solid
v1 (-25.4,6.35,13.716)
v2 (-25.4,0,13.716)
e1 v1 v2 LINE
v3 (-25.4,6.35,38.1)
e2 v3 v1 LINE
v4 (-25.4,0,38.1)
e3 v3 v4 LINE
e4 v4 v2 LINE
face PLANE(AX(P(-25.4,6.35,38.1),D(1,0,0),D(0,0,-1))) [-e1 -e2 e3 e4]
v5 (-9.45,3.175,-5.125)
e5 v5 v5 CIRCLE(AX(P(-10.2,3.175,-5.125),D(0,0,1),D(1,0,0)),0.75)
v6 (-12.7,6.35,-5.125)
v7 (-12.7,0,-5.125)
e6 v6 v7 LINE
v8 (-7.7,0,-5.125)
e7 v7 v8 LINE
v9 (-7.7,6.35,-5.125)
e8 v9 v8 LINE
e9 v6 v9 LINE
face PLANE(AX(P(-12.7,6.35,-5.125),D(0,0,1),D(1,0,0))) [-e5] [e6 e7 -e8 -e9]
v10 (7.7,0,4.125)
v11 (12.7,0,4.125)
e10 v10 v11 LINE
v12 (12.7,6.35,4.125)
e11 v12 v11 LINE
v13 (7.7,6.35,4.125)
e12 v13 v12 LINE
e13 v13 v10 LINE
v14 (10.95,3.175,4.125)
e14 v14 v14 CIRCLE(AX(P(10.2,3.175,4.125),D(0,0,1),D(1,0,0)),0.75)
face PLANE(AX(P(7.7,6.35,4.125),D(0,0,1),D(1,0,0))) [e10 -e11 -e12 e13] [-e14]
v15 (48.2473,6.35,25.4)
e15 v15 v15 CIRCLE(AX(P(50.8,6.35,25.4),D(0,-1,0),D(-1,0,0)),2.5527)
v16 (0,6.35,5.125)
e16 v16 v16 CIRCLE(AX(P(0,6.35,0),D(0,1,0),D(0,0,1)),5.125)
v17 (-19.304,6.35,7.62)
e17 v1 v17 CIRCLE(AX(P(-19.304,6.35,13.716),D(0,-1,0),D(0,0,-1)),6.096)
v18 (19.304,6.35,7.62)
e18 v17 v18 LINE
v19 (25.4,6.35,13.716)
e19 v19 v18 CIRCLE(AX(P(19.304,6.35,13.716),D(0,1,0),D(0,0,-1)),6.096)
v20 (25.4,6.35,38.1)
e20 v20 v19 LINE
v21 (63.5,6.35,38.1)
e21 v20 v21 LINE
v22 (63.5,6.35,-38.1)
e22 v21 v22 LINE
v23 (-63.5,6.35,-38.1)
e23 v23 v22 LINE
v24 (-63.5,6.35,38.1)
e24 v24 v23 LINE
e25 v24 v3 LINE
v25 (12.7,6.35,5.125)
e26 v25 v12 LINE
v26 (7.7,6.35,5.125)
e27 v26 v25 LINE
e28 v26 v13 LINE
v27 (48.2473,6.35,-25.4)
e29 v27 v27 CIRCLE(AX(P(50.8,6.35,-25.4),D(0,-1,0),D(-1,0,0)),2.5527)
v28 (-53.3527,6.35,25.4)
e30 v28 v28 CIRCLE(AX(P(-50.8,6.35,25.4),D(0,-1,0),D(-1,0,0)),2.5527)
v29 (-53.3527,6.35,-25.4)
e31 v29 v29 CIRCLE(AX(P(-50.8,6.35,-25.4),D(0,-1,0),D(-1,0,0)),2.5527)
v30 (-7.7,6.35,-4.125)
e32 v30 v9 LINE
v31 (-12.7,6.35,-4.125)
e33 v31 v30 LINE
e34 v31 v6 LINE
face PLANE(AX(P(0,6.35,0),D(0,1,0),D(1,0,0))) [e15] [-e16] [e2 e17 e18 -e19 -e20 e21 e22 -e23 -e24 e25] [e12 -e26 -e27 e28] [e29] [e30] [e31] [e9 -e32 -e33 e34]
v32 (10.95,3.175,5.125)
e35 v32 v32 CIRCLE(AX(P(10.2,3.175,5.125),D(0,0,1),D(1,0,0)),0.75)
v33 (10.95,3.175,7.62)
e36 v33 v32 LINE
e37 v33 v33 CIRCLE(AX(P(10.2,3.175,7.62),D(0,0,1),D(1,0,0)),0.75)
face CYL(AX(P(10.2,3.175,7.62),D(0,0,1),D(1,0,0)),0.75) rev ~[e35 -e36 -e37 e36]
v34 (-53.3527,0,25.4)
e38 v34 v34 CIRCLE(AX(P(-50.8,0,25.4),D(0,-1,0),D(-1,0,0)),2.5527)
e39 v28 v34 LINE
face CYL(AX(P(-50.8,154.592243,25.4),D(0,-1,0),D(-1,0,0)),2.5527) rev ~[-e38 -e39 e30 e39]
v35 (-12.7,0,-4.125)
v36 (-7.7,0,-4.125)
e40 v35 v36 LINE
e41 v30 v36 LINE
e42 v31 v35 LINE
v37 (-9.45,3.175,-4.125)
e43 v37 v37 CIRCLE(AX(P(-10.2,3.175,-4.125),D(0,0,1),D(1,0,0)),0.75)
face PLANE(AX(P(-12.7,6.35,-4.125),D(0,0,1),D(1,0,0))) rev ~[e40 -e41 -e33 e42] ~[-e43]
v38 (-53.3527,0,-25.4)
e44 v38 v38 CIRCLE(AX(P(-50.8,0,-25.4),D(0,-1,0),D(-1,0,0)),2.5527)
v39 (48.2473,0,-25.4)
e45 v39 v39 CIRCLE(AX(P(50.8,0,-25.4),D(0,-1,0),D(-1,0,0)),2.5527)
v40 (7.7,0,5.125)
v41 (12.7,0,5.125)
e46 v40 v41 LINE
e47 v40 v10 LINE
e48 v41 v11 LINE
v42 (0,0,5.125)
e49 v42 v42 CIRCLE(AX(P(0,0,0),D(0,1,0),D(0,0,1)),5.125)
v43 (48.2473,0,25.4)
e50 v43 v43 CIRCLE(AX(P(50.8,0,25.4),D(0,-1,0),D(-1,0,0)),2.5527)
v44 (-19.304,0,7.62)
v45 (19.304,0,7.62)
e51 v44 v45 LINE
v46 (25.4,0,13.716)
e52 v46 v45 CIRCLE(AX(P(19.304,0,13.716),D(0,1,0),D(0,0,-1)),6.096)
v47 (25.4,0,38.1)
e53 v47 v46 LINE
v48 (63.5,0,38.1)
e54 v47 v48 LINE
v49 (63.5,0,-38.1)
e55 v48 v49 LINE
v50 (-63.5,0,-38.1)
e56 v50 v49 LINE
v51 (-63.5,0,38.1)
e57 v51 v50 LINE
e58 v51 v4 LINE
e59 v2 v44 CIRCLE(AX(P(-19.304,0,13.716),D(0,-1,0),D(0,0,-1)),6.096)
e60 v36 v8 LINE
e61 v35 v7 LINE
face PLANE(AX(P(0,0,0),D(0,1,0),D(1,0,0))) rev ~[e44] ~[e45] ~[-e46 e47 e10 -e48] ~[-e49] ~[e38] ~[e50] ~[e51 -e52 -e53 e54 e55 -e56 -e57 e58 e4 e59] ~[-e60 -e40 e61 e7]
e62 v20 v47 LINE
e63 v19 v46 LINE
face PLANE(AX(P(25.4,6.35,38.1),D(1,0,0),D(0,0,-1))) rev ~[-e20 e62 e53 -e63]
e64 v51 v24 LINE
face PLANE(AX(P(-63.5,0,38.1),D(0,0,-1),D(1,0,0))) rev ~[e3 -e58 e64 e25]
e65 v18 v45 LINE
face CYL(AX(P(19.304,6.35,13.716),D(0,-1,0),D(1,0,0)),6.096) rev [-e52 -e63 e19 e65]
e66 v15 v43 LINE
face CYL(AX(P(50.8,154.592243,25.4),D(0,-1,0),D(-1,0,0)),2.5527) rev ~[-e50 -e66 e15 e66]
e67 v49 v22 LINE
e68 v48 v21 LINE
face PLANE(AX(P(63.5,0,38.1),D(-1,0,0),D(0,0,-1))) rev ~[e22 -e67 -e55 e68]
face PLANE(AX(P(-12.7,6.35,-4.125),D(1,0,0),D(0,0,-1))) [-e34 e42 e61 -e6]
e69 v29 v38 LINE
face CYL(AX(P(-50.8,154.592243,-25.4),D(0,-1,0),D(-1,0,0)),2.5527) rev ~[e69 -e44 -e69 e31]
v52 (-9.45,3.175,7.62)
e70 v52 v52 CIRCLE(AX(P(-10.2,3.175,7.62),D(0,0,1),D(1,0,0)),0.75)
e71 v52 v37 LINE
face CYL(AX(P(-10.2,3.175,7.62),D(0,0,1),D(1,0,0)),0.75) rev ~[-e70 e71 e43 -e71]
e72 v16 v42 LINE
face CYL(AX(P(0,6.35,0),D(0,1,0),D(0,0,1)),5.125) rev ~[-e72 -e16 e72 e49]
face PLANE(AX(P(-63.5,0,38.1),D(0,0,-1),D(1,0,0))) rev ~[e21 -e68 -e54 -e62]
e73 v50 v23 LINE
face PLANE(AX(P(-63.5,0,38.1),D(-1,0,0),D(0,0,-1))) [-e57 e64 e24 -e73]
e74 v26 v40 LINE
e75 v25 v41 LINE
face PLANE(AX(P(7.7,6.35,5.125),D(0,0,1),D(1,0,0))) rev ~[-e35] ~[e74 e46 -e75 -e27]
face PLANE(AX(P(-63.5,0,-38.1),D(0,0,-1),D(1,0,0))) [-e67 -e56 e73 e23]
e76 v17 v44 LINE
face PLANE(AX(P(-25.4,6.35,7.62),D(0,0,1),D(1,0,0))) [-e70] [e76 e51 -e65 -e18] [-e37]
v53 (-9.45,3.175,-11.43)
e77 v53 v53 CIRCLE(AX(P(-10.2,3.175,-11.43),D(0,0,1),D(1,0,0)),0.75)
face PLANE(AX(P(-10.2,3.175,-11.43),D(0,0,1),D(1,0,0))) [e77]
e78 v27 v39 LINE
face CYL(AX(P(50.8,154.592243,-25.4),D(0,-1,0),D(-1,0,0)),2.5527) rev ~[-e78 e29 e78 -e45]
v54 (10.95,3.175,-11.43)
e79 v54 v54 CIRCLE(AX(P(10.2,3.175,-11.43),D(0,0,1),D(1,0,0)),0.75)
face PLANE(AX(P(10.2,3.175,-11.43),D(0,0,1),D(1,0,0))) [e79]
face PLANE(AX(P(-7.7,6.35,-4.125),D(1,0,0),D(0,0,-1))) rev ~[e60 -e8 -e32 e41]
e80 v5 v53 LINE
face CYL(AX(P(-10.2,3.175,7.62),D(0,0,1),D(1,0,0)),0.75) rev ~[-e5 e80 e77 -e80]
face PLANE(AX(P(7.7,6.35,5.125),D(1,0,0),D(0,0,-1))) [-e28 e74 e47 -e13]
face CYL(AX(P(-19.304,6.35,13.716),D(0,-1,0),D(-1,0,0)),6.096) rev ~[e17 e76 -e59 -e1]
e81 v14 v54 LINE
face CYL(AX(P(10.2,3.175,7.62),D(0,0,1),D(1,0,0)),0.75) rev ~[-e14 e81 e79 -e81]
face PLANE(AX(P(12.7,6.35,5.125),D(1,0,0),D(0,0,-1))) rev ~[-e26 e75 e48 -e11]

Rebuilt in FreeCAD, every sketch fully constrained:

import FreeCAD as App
import Part
import Sketcher
from FreeCAD import Vector
Q = App.Units.Quantity


def edges_at(feature, points):
    """Names of the edges that pass closest to the given points."""
    edges = feature.Shape.Edges
    near = lambda p: min(range(len(edges)), key=lambda i: edges[i].distToShape(Part.Vertex(*p))[0])
    return sorted({f"Edge{near(p) + 1}" for p in points})

doc = App.newDocument("Part")
body = doc.addObject("PartDesign::Body", "Body")

sketch1 = body.newObject("Sketcher::SketchObject", "Sketch")
sketch1.AttachmentSupport = (doc.getObject("XZ_Plane"), [""])
sketch1.MapMode = "FlatFace"
sketch1.addGeometry(Part.LineSegment(Vector(-64, -38, 0), Vector(-64, 38, 0)), False)
sketch1.addGeometry(Part.LineSegment(Vector(-64, 38, 0), Vector(64, 38, 0)), False)
sketch1.addGeometry(Part.LineSegment(Vector(64, 38, 0), Vector(64, -38, 0)), False)
sketch1.addGeometry(Part.LineSegment(Vector(64, -38, 0), Vector(-64, -38, 0)), False)
sketch1.addConstraint(Sketcher.Constraint("Coincident", 0, 2, 1, 1))
sketch1.addConstraint(Sketcher.Constraint("Coincident", 1, 2, 2, 1))
sketch1.addConstraint(Sketcher.Constraint("Coincident", 2, 2, 3, 1))
sketch1.addConstraint(Sketcher.Constraint("Coincident", 3, 2, 0, 1))
sketch1.addConstraint(Sketcher.Constraint("Vertical", 0))
sketch1.addConstraint(Sketcher.Constraint("Horizontal", 1))
sketch1.addConstraint(Sketcher.Constraint("Vertical", 2))
sketch1.addConstraint(Sketcher.Constraint("Horizontal", 3))
sketch1.addConstraint(Sketcher.Constraint("Symmetric", 0, 2, 2, 2, -1, 1))
sketch1.addConstraint(Sketcher.Constraint("DistanceX", 1, 1, 1, 2, Q("5 in")))
sketch1.addConstraint(Sketcher.Constraint("DistanceY", 0, 1, 0, 2, Q("3 in")))
pad1 = body.newObject("PartDesign::Pad", "Pad")
pad1.Profile = sketch1
pad1.Length = Q("0.25 in")
pad1.Reversed = True

sketch2 = body.newObject("Sketcher::SketchObject", "Sketch001")
sketch2.AttachmentSupport = (doc.getObject("XZ_Plane"), [""])
sketch2.MapMode = "FlatFace"
sketch2.AttachmentOffset = App.Placement(Vector(0, 0, -0.25 * 25.4), App.Rotation())
sketch2.addGeometry(Part.Circle(Vector(0, 0, 0), Vector(0, 0, 1), 5.1), False)
sketch2.addGeometry(Part.LineSegment(Vector(-25.4, 7.6, 0), Vector(-25.4, 38.1, 0)), False)
sketch2.addGeometry(Part.LineSegment(Vector(-25.4, 38.1, 0), Vector(25.4, 38.1, 0)), False)
sketch2.addGeometry(Part.LineSegment(Vector(25.4, 38.1, 0), Vector(25.4, 7.6, 0)), False)
sketch2.addGeometry(Part.LineSegment(Vector(25.4, 7.6, 0), Vector(-25.4, 7.6, 0)), False)
sketch2.addGeometry(Part.LineSegment(Vector(7.7, 4.1, 0), Vector(7.7, 5.1, 0)), False)
sketch2.addGeometry(Part.LineSegment(Vector(7.7, 5.1, 0), Vector(12.7, 5.1, 0)), False)
sketch2.addGeometry(Part.LineSegment(Vector(12.7, 5.1, 0), Vector(12.7, 4.1, 0)), False)
sketch2.addGeometry(Part.LineSegment(Vector(12.7, 4.1, 0), Vector(7.7, 4.1, 0)), False)
sketch2.addGeometry(Part.LineSegment(Vector(-12.7, -5.1, 0), Vector(-12.7, -4.1, 0)), False)
sketch2.addGeometry(Part.LineSegment(Vector(-12.7, -4.1, 0), Vector(-7.7, -4.1, 0)), False)
sketch2.addGeometry(Part.LineSegment(Vector(-7.7, -4.1, 0), Vector(-7.7, -5.1, 0)), False)
sketch2.addGeometry(Part.LineSegment(Vector(-7.7, -5.1, 0), Vector(-12.7, -5.1, 0)), False)
sketch2.addConstraint(Sketcher.Constraint("Coincident", 1, 2, 2, 1))
sketch2.addConstraint(Sketcher.Constraint("Coincident", 2, 2, 3, 1))
sketch2.addConstraint(Sketcher.Constraint("Coincident", 3, 2, 4, 1))
sketch2.addConstraint(Sketcher.Constraint("Coincident", 4, 2, 1, 1))
sketch2.addConstraint(Sketcher.Constraint("Coincident", 5, 2, 6, 1))
sketch2.addConstraint(Sketcher.Constraint("Coincident", 6, 2, 7, 1))
sketch2.addConstraint(Sketcher.Constraint("Coincident", 7, 2, 8, 1))
sketch2.addConstraint(Sketcher.Constraint("Coincident", 8, 2, 5, 1))
sketch2.addConstraint(Sketcher.Constraint("Coincident", 9, 2, 10, 1))
sketch2.addConstraint(Sketcher.Constraint("Coincident", 10, 2, 11, 1))
sketch2.addConstraint(Sketcher.Constraint("Coincident", 11, 2, 12, 1))
sketch2.addConstraint(Sketcher.Constraint("Coincident", 12, 2, 9, 1))
sketch2.addConstraint(Sketcher.Constraint("Vertical", 1))
sketch2.addConstraint(Sketcher.Constraint("Horizontal", 2))
sketch2.addConstraint(Sketcher.Constraint("Vertical", 3))
sketch2.addConstraint(Sketcher.Constraint("Horizontal", 4))
sketch2.addConstraint(Sketcher.Constraint("Vertical", 5))
sketch2.addConstraint(Sketcher.Constraint("Horizontal", 6))
sketch2.addConstraint(Sketcher.Constraint("Vertical", 7))
sketch2.addConstraint(Sketcher.Constraint("Horizontal", 8))
sketch2.addConstraint(Sketcher.Constraint("Vertical", 9))
sketch2.addConstraint(Sketcher.Constraint("Horizontal", 10))
sketch2.addConstraint(Sketcher.Constraint("Vertical", 11))
sketch2.addConstraint(Sketcher.Constraint("Horizontal", 12))
sketch2.addConstraint(Sketcher.Constraint("Coincident", 0, 3, -1, 1))
sketch2.addConstraint(Sketcher.Constraint("Symmetric", 7, 2, 9, 2, -1, 1))
sketch2.addConstraint(Sketcher.Constraint("Symmetric", 5, 2, 11, 2, -1, 1))
sketch2.addConstraint(Sketcher.Constraint("DistanceX", 2, 1, 2, 2, Q("2 in")))
sketch2.addConstraint(Sketcher.Constraint("DistanceY", 1, 1, 1, 2, Q("1.2 in")))
sketch2.addConstraint(Sketcher.Constraint("DistanceX", 1, 2, -1, 1, Q("1 in")))
sketch2.addConstraint(Sketcher.Constraint("DistanceX", 9, 2, 7, 2, Q("1 in")))
sketch2.addConstraint(Sketcher.Constraint("DistanceY", -1, 1, 1, 2, Q("1.5 in")))
sketch2.addConstraint(Sketcher.Constraint("Diameter", 0, Q("10.25 mm")))
sketch2.addConstraint(Sketcher.Constraint("DistanceX", 6, 1, 6, 2, Q("5 mm")))
sketch2.addConstraint(Sketcher.Constraint("DistanceY", 5, 1, 5, 2, Q("1 mm")))
sketch2.addConstraint(Sketcher.Constraint("DistanceY", -1, 1, 5, 2, Q("5.125 mm")))
pocket1 = body.newObject("PartDesign::Pocket", "Pocket")
pocket1.Profile = sketch2
pocket1.Type = "ThroughAll"
pocket1.Reversed = True
doc.recompute()

fillet = body.newObject("PartDesign::Fillet", "Fillet")
fillet.Base = (pocket1, edges_at(pocket1, [(-25.4, 3.175, 7.62), (25.4, 3.175, 7.62)]))
fillet.Radius = Q("0.24 in")

sketch3 = body.newObject("Sketcher::SketchObject", "Sketch002")
sketch3.AttachmentSupport = (doc.getObject("XY_Plane"), [""])
sketch3.MapMode = "FlatFace"
sketch3.AttachmentOffset = App.Placement(Vector(0, 0, 0.3 * 25.4), App.Rotation())
sketch3.addGeometry(Part.Circle(Vector(-10.2, 3.2, 0), Vector(0, 0, 1), 0.8), False)
sketch3.addGeometry(Part.Circle(Vector(10.2, 3.2, 0), Vector(0, 0, 1), 0.8), False)
sketch3.addConstraint(Sketcher.Constraint("Equal", 0, 1))
sketch3.addConstraint(Sketcher.Constraint("Symmetric", 0, 3, 1, 3, -2))
sketch3.addConstraint(Sketcher.Constraint("Diameter", 0, Q("1.5 mm")))
sketch3.addConstraint(Sketcher.Constraint("DistanceY", -1, 1, 0, 3, Q("0.125 in")))
sketch3.addConstraint(Sketcher.Constraint("DistanceX", 0, 3, -1, 1, Q("10.2 mm")))
pocket2 = body.newObject("PartDesign::Pocket", "Pocket001")
pocket2.Profile = sketch3
pocket2.Length = Q("0.75 in")

sketch4 = body.newObject("Sketcher::SketchObject", "Sketch003")
sketch4.AttachmentSupport = (doc.getObject("XZ_Plane"), [""])
sketch4.MapMode = "FlatFace"
sketch4.AttachmentOffset = App.Placement(Vector(0, 0, -0.25 * 25.4), App.Rotation())
sketch4.addGeometry(Part.Circle(Vector(-50.8, -25.4, 0), Vector(0, 0, 1), 2.6), False)
sketch4.addGeometry(Part.Circle(Vector(50.8, -25.4, 0), Vector(0, 0, 1), 2.6), False)
sketch4.addGeometry(Part.Circle(Vector(50.8, 25.4, 0), Vector(0, 0, 1), 2.6), False)
sketch4.addGeometry(Part.Circle(Vector(-50.8, 25.4, 0), Vector(0, 0, 1), 2.6), False)
sketch4.addConstraint(Sketcher.Constraint("Equal", 0, 1))
sketch4.addConstraint(Sketcher.Constraint("Equal", 1, 2))
sketch4.addConstraint(Sketcher.Constraint("Equal", 2, 3))
sketch4.addConstraint(Sketcher.Constraint("Symmetric", 0, 3, 2, 3, -1, 1))
sketch4.addConstraint(Sketcher.Constraint("Symmetric", 1, 3, 3, 3, -1, 1))
sketch4.addConstraint(Sketcher.Constraint("Symmetric", 0, 3, 1, 3, -2))
sketch4.addConstraint(Sketcher.Constraint("Diameter", 0, Q("0.201 in")))
sketch4.addConstraint(Sketcher.Constraint("DistanceX", 0, 3, -1, 1, Q("2 in")))
sketch4.addConstraint(Sketcher.Constraint("DistanceY", 0, 3, -1, 1, Q("1 in")))
doc.recompute()
hole = body.newObject("PartDesign::Hole", "Hole")
hole.Profile = sketch4
hole.ThreadType = "None"
hole.Diameter = Q("0.201 in")
hole.DepthType = "ThroughAll"
hole.Reversed = True

doc.recompute()
